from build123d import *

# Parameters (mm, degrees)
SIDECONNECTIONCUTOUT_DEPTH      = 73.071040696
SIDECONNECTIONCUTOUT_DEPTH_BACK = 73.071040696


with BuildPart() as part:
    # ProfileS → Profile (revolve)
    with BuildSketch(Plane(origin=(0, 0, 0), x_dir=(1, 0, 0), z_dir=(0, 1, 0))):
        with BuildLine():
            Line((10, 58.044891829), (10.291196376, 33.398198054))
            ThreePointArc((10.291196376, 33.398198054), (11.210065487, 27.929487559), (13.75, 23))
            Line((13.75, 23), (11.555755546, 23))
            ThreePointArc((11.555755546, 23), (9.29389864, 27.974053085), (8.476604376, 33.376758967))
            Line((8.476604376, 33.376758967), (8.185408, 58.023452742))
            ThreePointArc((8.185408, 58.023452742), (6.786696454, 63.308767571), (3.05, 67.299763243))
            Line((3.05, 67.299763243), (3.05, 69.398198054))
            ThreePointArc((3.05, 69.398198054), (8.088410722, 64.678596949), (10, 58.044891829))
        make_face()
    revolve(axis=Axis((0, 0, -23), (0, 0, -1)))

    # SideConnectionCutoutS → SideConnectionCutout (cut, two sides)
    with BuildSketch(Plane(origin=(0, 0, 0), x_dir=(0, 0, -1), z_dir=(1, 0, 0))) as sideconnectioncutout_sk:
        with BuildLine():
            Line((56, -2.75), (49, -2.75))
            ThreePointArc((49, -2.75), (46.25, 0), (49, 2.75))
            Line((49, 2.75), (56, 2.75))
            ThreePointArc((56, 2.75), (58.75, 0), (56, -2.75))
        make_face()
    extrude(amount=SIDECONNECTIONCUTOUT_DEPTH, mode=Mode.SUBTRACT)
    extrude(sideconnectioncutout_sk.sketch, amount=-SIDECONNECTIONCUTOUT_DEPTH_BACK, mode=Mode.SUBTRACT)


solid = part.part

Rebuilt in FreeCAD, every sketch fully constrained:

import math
import FreeCAD as App
import Part
import Sketcher
from FreeCAD import Vector

doc = App.newDocument("Part")
body = doc.addObject("PartDesign::Body", "Body")

sketch1 = body.newObject("Sketcher::SketchObject", "Sketch")
sketch1.AttachmentSupport = (doc.getObject("XZ_Plane"), [""])
sketch1.MapMode = "FlatFace"
sketch1.addGeometry([
    Part.LineSegment(Vector(10.3, -33.4, 0), Vector(10, -58, 0)),
    Part.ArcOfCircle(Part.Circle(Vector(-3, -57.9, 0), Vector(0, 0, 1), 13), math.radians(-62), math.radians(-1)),
    Part.LineSegment(Vector(3, -69.4, 0), Vector(3, -67.3, 0)),
    Part.ArcOfCircle(Part.Circle(Vector(-3, -57.9, 0), Vector(0, 0, 1), 11.2), math.radians(-57), math.radians(-1)),
    Part.LineSegment(Vector(8.2, -58, 0), Vector(8.5, -33.4, 0)),
    Part.ArcOfCircle(Part.Circle(Vector(28.3, -33.6, 0), Vector(0, 0, 1), 19.8), math.radians(148), math.radians(179)),
    Part.LineSegment(Vector(11.6, -23, 0), Vector(13.8, -23, 0)),
    Part.ArcOfCircle(Part.Circle(Vector(28.3, -33.6, 0), Vector(0, 0, 1), 18), math.radians(144), math.radians(179)),
], False)
sketch1.addConstraint([
    Sketcher.Constraint("Tangent", 0, 2, 1, 2),
    Sketcher.Constraint("Coincident", 1, 1, 2, 1),
    Sketcher.Constraint("Coincident", 2, 2, 3, 1),
    Sketcher.Constraint("Tangent", 3, 2, 4, 1),
    Sketcher.Constraint("Tangent", 4, 2, 5, 2),
    Sketcher.Constraint("Coincident", 5, 1, 6, 1),
    Sketcher.Constraint("Coincident", 6, 2, 7, 1),
    Sketcher.Constraint("Tangent", 7, 2, 0, 1),
    Sketcher.Constraint("Vertical", 2),
    Sketcher.Constraint("Horizontal", 6),
    Sketcher.Constraint("Coincident", 3, 3, 1, 3),
    Sketcher.Constraint("Coincident", 7, 3, 5, 3),
    Sketcher.Constraint("Parallel", 0, 4),
    Sketcher.Constraint("Radius", 1, 13.0),
    Sketcher.Constraint("Radius", 7, 18.0),
    Sketcher.Constraint("DistanceX", -1, 1, 0, 2, 10.0),
    Sketcher.Constraint("DistanceY", 5, 1, -1, 1, 23.0),
    Sketcher.Constraint("DistanceX", -1, 1, 1, 1, 3.05),
    Sketcher.Constraint("DistanceX", -1, 1, 6, 2, 13.75),
    Sketcher.Constraint("Radius", 3, 11.185281),
    Sketcher.Constraint("DistanceY", 1, 1, -1, 1, 69.398198),
    Sketcher.Constraint("DistanceY", 7, 2, -1, 1, 33.398198),
])
revolution = body.newObject("PartDesign::Revolution", "Revolution")
revolution.Profile = sketch1
revolution.ReferenceAxis = (sketch1, ["V_Axis"])
revolution.Angle = 360

sketch2 = body.newObject("Sketcher::SketchObject", "Sketch001")
sketch2.AttachmentSupport = (doc.getObject("YZ_Plane"), [""])
sketch2.MapMode = "FlatFace"
sketch2.addGeometry([
    Part.LineSegment(Vector(-2.8, -49, 0), Vector(-2.8, -56, 0)),
    Part.ArcOfCircle(Part.Circle(Vector(0, -56, 0), Vector(0, 0, 1), 2.8), math.radians(180), math.radians(360)),
    Part.LineSegment(Vector(2.8, -56, 0), Vector(2.8, -49, 0)),
    Part.ArcOfCircle(Part.Circle(Vector(0, -49, 0), Vector(0, 0, 1), 2.8), math.radians(0), math.radians(180)),
], False)
sketch2.addConstraint([
    Sketcher.Constraint("Tangent", 0, 2, 1, 1),
    Sketcher.Constraint("Tangent", 1, 2, 2, 1),
    Sketcher.Constraint("Tangent", 2, 2, 3, 1),
    Sketcher.Constraint("Tangent", 3, 2, 0, 1),
    Sketcher.Constraint("Vertical", 0),
    Sketcher.Constraint("Vertical", 2),
    Sketcher.Constraint("PointOnObject", 1, 3, -2),
    Sketcher.Constraint("DistanceY", 0, 2, 0, 1, 7.0),
    Sketcher.Constraint("Radius", 1, 2.75),
    Sketcher.Constraint("DistanceY", 1, 3, -1, 1, 56.0),
])
pocket1 = body.newObject("PartDesign::Pocket", "Pocket")
pocket1.Profile = sketch2
pocket1.Type = "ThroughAll"
pocket1.Midplane = True

doc.recompute()
